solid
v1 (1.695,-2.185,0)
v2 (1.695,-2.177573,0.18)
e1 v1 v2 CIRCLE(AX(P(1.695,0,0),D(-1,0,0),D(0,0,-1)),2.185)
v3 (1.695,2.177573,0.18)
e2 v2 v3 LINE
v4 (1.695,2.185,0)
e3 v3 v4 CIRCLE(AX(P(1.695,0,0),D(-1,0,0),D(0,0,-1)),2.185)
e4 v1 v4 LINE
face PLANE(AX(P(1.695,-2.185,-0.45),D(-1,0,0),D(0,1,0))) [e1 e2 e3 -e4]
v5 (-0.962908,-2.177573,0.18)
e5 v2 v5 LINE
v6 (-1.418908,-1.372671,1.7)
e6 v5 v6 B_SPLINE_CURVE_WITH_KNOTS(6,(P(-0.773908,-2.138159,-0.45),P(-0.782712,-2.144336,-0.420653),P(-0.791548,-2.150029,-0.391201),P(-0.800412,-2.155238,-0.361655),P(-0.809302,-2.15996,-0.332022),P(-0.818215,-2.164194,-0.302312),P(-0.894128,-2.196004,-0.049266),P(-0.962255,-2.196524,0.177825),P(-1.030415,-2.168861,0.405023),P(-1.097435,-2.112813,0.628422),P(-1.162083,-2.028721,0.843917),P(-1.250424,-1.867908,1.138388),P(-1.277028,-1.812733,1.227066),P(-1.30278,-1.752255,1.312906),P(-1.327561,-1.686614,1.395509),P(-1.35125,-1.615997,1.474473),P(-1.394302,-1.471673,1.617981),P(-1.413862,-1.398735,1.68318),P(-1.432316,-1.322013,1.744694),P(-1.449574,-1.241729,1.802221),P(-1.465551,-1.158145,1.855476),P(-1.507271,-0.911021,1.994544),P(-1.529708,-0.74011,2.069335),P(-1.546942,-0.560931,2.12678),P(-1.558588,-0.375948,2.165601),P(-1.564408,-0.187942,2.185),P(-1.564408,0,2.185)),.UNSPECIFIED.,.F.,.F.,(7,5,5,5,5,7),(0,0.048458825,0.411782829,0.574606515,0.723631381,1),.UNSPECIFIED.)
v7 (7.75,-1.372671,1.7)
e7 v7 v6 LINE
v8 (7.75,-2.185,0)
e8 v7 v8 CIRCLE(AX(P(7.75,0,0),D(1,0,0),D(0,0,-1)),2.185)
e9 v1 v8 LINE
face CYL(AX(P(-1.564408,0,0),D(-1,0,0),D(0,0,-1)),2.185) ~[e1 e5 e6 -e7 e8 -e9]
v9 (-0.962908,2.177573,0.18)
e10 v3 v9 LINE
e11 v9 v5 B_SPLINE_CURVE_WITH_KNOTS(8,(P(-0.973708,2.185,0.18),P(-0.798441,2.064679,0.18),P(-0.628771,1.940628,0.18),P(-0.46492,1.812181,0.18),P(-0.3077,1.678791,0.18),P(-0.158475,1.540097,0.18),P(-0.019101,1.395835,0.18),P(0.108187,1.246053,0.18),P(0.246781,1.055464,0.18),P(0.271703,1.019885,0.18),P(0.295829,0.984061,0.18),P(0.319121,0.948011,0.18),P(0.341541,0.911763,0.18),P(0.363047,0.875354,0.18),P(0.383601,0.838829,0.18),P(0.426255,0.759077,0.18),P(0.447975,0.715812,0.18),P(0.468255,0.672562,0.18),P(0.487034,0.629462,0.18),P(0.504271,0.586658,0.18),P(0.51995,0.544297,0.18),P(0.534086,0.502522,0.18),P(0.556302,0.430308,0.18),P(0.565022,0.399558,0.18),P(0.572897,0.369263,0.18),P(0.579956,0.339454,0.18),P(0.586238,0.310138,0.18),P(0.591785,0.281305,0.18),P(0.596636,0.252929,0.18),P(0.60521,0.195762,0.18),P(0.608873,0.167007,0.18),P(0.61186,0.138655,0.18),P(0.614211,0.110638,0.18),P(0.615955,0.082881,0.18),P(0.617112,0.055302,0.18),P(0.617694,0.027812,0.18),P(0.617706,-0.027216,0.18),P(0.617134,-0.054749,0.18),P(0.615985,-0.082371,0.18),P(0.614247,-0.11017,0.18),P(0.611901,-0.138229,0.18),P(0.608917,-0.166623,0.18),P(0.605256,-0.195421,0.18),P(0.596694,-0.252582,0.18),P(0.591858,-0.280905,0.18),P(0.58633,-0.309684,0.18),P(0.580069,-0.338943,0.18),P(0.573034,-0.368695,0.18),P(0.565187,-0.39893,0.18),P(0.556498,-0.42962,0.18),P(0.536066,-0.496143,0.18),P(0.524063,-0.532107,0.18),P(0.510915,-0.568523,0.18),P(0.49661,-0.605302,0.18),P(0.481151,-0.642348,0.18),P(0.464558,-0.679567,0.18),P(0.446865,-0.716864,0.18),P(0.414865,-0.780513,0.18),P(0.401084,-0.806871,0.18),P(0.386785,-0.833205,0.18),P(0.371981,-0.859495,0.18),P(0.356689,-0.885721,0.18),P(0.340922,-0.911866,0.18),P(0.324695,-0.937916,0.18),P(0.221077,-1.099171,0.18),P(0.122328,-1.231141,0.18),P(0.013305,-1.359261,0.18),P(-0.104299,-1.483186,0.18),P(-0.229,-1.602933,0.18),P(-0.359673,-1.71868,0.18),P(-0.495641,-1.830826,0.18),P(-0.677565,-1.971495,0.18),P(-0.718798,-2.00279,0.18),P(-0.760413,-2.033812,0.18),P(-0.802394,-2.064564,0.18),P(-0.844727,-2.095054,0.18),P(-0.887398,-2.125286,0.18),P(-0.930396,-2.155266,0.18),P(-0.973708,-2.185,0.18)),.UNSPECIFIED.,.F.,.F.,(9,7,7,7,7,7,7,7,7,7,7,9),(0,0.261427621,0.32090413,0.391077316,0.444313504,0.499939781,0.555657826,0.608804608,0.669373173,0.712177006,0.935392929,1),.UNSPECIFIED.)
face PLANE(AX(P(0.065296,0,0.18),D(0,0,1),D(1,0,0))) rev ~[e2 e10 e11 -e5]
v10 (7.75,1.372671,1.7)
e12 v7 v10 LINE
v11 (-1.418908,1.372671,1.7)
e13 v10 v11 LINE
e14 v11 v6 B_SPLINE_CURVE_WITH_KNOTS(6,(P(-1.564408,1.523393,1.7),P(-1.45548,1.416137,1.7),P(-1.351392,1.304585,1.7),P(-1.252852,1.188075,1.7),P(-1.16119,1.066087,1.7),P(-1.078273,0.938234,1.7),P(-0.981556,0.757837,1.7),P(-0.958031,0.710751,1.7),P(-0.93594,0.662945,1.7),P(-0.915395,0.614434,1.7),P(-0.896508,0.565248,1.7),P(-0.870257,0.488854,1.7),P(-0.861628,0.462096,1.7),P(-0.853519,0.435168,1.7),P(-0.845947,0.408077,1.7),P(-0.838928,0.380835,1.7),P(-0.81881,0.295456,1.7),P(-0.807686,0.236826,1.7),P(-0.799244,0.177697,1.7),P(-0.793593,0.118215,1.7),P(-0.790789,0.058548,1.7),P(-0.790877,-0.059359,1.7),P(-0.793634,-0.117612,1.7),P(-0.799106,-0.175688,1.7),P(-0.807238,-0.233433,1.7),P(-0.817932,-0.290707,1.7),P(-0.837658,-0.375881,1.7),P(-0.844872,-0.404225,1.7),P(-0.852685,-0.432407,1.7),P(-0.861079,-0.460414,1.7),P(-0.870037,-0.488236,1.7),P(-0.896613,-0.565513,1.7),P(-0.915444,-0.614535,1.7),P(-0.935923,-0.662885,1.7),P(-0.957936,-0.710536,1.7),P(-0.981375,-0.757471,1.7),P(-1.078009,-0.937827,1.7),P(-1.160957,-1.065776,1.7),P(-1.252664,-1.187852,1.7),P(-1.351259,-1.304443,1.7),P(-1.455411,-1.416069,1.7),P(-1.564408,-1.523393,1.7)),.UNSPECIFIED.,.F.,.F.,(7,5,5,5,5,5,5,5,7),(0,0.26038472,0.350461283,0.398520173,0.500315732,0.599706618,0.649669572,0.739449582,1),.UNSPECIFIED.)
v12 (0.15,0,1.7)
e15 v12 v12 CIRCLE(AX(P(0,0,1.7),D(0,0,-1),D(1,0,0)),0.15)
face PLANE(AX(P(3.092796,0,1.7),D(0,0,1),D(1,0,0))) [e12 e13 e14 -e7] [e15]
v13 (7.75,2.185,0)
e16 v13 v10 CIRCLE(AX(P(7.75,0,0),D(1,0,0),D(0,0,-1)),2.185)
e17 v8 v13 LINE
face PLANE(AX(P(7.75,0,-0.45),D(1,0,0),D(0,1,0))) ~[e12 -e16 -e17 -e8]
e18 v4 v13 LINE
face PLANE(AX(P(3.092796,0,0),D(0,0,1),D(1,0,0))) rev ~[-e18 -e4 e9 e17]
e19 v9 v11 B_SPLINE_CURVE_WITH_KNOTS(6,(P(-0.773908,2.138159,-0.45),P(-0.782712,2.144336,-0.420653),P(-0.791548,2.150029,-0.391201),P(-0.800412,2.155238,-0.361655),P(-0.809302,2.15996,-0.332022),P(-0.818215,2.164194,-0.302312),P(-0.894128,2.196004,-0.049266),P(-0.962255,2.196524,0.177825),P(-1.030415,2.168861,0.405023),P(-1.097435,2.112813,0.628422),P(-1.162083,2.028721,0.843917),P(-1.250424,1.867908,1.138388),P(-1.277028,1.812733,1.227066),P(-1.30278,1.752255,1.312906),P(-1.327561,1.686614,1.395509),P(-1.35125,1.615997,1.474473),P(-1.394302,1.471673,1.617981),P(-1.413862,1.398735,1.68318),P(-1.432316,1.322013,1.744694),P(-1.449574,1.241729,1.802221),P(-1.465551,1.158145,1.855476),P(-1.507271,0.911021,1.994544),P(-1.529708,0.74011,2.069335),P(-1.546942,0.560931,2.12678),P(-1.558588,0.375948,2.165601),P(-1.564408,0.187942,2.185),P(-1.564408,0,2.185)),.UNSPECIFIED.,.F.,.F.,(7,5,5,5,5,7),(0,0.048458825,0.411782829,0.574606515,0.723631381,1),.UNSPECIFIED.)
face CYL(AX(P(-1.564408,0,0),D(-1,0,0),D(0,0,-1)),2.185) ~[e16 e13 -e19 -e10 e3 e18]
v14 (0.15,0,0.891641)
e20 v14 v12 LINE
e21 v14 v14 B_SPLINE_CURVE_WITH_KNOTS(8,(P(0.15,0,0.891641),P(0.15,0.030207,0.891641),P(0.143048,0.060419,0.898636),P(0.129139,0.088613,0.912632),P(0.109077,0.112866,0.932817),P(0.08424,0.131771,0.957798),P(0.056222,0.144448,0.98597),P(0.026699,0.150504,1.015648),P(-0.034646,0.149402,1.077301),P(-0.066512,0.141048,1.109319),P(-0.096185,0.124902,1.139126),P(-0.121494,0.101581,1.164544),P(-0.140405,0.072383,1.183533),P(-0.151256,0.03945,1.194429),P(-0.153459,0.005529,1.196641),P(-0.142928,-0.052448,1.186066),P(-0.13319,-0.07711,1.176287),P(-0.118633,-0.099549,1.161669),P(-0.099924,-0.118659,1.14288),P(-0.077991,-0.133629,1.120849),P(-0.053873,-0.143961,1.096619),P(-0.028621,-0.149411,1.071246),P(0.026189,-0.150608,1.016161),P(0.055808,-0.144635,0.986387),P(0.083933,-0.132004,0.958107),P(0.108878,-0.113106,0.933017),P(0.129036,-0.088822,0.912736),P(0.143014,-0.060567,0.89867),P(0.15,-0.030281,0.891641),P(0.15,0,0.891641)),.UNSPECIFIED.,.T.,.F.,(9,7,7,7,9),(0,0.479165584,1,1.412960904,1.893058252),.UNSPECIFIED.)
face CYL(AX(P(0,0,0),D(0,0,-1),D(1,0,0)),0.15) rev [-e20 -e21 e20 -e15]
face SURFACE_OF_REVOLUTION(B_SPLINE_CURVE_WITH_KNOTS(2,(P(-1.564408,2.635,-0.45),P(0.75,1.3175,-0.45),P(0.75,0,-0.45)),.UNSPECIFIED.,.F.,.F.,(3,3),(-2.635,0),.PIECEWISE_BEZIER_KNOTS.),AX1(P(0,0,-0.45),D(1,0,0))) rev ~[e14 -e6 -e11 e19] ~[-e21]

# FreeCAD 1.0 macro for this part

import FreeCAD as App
import Part
import Sketcher

V = App.Vector

doc = App.newDocument("Part")
body = doc.addObject("PartDesign::Body", "Body")

sketch1 = body.newObject("Sketcher::SketchObject", "Sketch")
sketch1.AttachmentSupport = (doc.getObject("YZ_Plane"), [""])
sketch1.MapMode = "FlatFace"
sketch1.AttachmentOffset = App.Placement(V(0, 0, -1.564408), App.Rotation())
sketch1.addGeometry(Part.Circle(V(0, 0, 0), V(0, 0, 1), 2.2), False)
sketch1.addConstraint(Sketcher.Constraint("Coincident", 0, 3, -1, 1))
sketch1.addConstraint(Sketcher.Constraint("Diameter", 0, 4.37))
pad1 = body.newObject("PartDesign::Pad", "Pad")
pad1.Profile = sketch1
pad1.Length = 9.314408
body2 = doc.addObject("PartDesign::Body", "Body001")

sketch2 = body2.newObject("Sketcher::SketchObject", "Sketch001")
sketch2.AttachmentSupport = (doc.getObject("XY_Plane001"), [""])
sketch2.MapMode = "FlatFace"
sketch2.AttachmentOffset = App.Placement(V(0, 0, 1.7), App.Rotation())
sketch2.addGeometry(Part.LineSegment(V(-1.6, 2.2, 0), V(-1.6, -2.2, 0)), False)
sketch2.addGeometry(Part.LineSegment(V(-1.6, -2.2, 0), V(7.8, -2.2, 0)), False)
sketch2.addGeometry(Part.LineSegment(V(7.8, -2.2, 0), V(7.8, 2.2, 0)), False)
sketch2.addGeometry(Part.LineSegment(V(7.8, 2.2, 0), V(-1.6, 2.2, 0)), False)
sketch2.addConstraint(Sketcher.Constraint("Coincident", 0, 2, 1, 1))
sketch2.addConstraint(Sketcher.Constraint("Coincident", 1, 2, 2, 1))
sketch2.addConstraint(Sketcher.Constraint("Coincident", 2, 2, 3, 1))
sketch2.addConstraint(Sketcher.Constraint("Coincident", 3, 2, 0, 1))
sketch2.addConstraint(Sketcher.Constraint("Vertical", 0))
sketch2.addConstraint(Sketcher.Constraint("Horizontal", 1))
sketch2.addConstraint(Sketcher.Constraint("Vertical", 2))
sketch2.addConstraint(Sketcher.Constraint("Horizontal", 3))
sketch2.addConstraint(Sketcher.Constraint("DistanceY", 0, 2, 0, 1, 4.37))
sketch2.addConstraint(Sketcher.Constraint("DistanceX", -1, 1, 1, 2, 7.75))
sketch2.addConstraint(Sketcher.Constraint("DistanceY", 0, 2, -1, 1, 2.185))
sketch2.addConstraint(Sketcher.Constraint("DistanceX", 1, 1, 1, 2, 9.314408))
pad2 = body2.newObject("PartDesign::Pad", "Pad001")
pad2.Profile = sketch2
pad2.Length = 0.935
body3 = doc.addObject("PartDesign::Body", "Body002")

sketch3 = body3.newObject("Sketcher::SketchObject", "Sketch002")
sketch3.AttachmentSupport = (doc.getObject("XY_Plane002"), [""])
sketch3.MapMode = "FlatFace"
sketch3.AttachmentOffset = App.Placement(V(0, 0, -0.45), App.Rotation())
sketch3.addGeometry(Part.LineSegment(V(-1.6, 2.2, 0), V(-1.6, -2.2, 0)), False)
sketch3.addGeometry(Part.LineSegment(V(-1.6, -2.2, 0), V(1.7, -2.2, 0)), False)
sketch3.addGeometry(Part.LineSegment(V(1.7, -2.2, 0), V(1.7, 2.2, 0)), False)
sketch3.addGeometry(Part.LineSegment(V(1.7, 2.2, 0), V(-1.6, 2.2, 0)), False)
sketch3.addConstraint(Sketcher.Constraint("Coincident", 0, 2, 1, 1))
sketch3.addConstraint(Sketcher.Constraint("Coincident", 1, 2, 2, 1))
sketch3.addConstraint(Sketcher.Constraint("Coincident", 2, 2, 3, 1))
sketch3.addConstraint(Sketcher.Constraint("Coincident", 3, 2, 0, 1))
sketch3.addConstraint(Sketcher.Constraint("Vertical", 0))
sketch3.addConstraint(Sketcher.Constraint("Horizontal", 1))
sketch3.addConstraint(Sketcher.Constraint("Vertical", 2))
sketch3.addConstraint(Sketcher.Constraint("Horizontal", 3))
sketch3.addConstraint(Sketcher.Constraint("DistanceY", 0, 2, 0, 1, 4.37))
sketch3.addConstraint(Sketcher.Constraint("DistanceY", 0, 2, -1, 1, 2.185))
sketch3.addConstraint(Sketcher.Constraint("DistanceX", -1, 1, 1, 2, 1.695))
sketch3.addConstraint(Sketcher.Constraint("DistanceX", 1, 1, 1, 2, 3.259408))
pad3 = body3.newObject("PartDesign::Pad", "Pad002")
pad3.Profile = sketch3
pad3.Length = 0.63
body4 = doc.addObject("PartDesign::Body", "Body003")

sketch4 = body4.newObject("Sketcher::SketchObject", "Sketch003")
sketch4.AttachmentSupport = (doc.getObject("XY_Plane003"), [""])
sketch4.MapMode = "FlatFace"
sketch4.AttachmentOffset = App.Placement(V(0, 0, -0.55), App.Rotation())
sketch4.addGeometry(Part.LineSegment(V(-1.6, 2.2, 0), V(-1.6, -2.2, 0)), False)
sketch4.addGeometry(Part.LineSegment(V(-1.6, -2.2, 0), V(7.8, -2.2, 0)), False)
sketch4.addGeometry(Part.LineSegment(V(7.8, -2.2, 0), V(7.8, 2.2, 0)), False)
sketch4.addGeometry(Part.LineSegment(V(7.8, 2.2, 0), V(-1.6, 2.2, 0)), False)
sketch4.addConstraint(Sketcher.Constraint("Coincident", 0, 2, 1, 1))
sketch4.addConstraint(Sketcher.Constraint("Coincident", 1, 2, 2, 1))
sketch4.addConstraint(Sketcher.Constraint("Coincident", 2, 2, 3, 1))
sketch4.addConstraint(Sketcher.Constraint("Coincident", 3, 2, 0, 1))
sketch4.addConstraint(Sketcher.Constraint("Vertical", 0))
sketch4.addConstraint(Sketcher.Constraint("Horizontal", 1))
sketch4.addConstraint(Sketcher.Constraint("Vertical", 2))
sketch4.addConstraint(Sketcher.Constraint("Horizontal", 3))
sketch4.addConstraint(Sketcher.Constraint("DistanceY", 0, 2, 0, 1, 4.37))
sketch4.addConstraint(Sketcher.Constraint("DistanceX", -1, 1, 1, 2, 7.75))
sketch4.addConstraint(Sketcher.Constraint("DistanceY", 0, 2, -1, 1, 2.185))
sketch4.addConstraint(Sketcher.Constraint("DistanceX", 1, 1, 1, 2, 9.314408))
pad4 = body4.newObject("PartDesign::Pad", "Pad003")
pad4.Profile = sketch4
pad4.Length = 0.55
body5 = doc.addObject("PartDesign::Body", "Body004")

sketch5 = body5.newObject("Sketcher::SketchObject", "Sketch004")
sketch5.AttachmentSupport = (doc.getObject("XY_Plane004"), [""])
sketch5.MapMode = "FlatFace"
sketch5.addGeometry(Part.Circle(V(0, 0, 0), V(0, 0, 1), 0.15), False)
sketch5.addConstraint(Sketcher.Constraint("Coincident", 0, 3, -1, 1))
sketch5.addConstraint(Sketcher.Constraint("Diameter", 0, 0.3))
pad5 = body5.newObject("PartDesign::Pad", "Pad004")
pad5.Profile = sketch5
pad5.Length = 2.185
doc.recompute()

boolean = body5.newObject("PartDesign::Boolean", "Boolean")
boolean.Type = "Fuse"
boolean.addObjects([body2])
doc.recompute()

boolean2 = body5.newObject("PartDesign::Boolean", "Boolean001")
boolean2.Type = "Fuse"
boolean2.addObjects([body3])
doc.recompute()

boolean3 = body5.newObject("PartDesign::Boolean", "Boolean002")
boolean3.Type = "Fuse"
boolean3.addObjects([body4])
body6 = doc.addObject("PartDesign::Body", "Body005")

sketch6 = body6.newObject("Sketcher::SketchObject", "Sketch005")
sketch6.AttachmentSupport = (doc.getObject("XY_Plane005"), [""])
sketch6.MapMode = "FlatFace"
sketch6.addGeometry(Part.LineSegment(V(0.75, 0, 0), V(7.75, 0, 0)), False)
sketch6.addGeometry(Part.LineSegment(V(7.75, 0, 0), V(7.75, 2.635, 0)), False)
sketch6.addGeometry(Part.LineSegment(V(7.75, 2.635, 0), V(-1.564408, 2.635, 0)), False)
sketch6.addGeometry(Part.BSplineCurve([V(-1.564408, 2.635, 0), V(0.75, 1.3175, 0), V(0.75, 0, 0)], [3, 3], [-2.635, 0], False, 2, [1, 1, 1], False), False)
sketch6.addConstraint(Sketcher.Constraint("Block", 3))
sketch6.addConstraint(Sketcher.Constraint("Coincident", 0, 2, 1, 1))
sketch6.addConstraint(Sketcher.Constraint("Coincident", 1, 2, 2, 1))
sketch6.addConstraint(Sketcher.Constraint("Coincident", 2, 2, 3, 1))
sketch6.addConstraint(Sketcher.Constraint("Coincident", 3, 2, 0, 1))
sketch6.addConstraint(Sketcher.Constraint("Horizontal", 0))
sketch6.addConstraint(Sketcher.Constraint("Vertical", 1))
sketch6.addConstraint(Sketcher.Constraint("Horizontal", 2))
sketch6.addConstraint(Sketcher.Constraint("DistanceX", 0, 1, 0, 2, 7.0))
revolution = body6.newObject("PartDesign::Revolution", "Revolution")
revolution.Profile = sketch6
revolution.ReferenceAxis = (sketch6, ["H_Axis"])
revolution.Angle = 180
body7 = doc.addObject("PartDesign::Body", "Body006")
doc.recompute()

body6.Placement = App.Placement(V(0, 0, -0.45), App.Rotation(V(0, 0, 1), 0))
boolean4 = body7.newObject("PartDesign::Boolean", "Boolean003")
boolean4.Type = "Fuse"
boolean4.addObjects([body6])
doc.recompute()

boolean5 = body7.newObject("PartDesign::Boolean", "Boolean004")
boolean5.Type = "Cut"
boolean5.addObjects([body5])
doc.recompute()

boolean6 = body7.newObject("PartDesign::Boolean", "Boolean005")
boolean6.Type = "Common"
boolean6.addObjects([body])

doc.recompute()
